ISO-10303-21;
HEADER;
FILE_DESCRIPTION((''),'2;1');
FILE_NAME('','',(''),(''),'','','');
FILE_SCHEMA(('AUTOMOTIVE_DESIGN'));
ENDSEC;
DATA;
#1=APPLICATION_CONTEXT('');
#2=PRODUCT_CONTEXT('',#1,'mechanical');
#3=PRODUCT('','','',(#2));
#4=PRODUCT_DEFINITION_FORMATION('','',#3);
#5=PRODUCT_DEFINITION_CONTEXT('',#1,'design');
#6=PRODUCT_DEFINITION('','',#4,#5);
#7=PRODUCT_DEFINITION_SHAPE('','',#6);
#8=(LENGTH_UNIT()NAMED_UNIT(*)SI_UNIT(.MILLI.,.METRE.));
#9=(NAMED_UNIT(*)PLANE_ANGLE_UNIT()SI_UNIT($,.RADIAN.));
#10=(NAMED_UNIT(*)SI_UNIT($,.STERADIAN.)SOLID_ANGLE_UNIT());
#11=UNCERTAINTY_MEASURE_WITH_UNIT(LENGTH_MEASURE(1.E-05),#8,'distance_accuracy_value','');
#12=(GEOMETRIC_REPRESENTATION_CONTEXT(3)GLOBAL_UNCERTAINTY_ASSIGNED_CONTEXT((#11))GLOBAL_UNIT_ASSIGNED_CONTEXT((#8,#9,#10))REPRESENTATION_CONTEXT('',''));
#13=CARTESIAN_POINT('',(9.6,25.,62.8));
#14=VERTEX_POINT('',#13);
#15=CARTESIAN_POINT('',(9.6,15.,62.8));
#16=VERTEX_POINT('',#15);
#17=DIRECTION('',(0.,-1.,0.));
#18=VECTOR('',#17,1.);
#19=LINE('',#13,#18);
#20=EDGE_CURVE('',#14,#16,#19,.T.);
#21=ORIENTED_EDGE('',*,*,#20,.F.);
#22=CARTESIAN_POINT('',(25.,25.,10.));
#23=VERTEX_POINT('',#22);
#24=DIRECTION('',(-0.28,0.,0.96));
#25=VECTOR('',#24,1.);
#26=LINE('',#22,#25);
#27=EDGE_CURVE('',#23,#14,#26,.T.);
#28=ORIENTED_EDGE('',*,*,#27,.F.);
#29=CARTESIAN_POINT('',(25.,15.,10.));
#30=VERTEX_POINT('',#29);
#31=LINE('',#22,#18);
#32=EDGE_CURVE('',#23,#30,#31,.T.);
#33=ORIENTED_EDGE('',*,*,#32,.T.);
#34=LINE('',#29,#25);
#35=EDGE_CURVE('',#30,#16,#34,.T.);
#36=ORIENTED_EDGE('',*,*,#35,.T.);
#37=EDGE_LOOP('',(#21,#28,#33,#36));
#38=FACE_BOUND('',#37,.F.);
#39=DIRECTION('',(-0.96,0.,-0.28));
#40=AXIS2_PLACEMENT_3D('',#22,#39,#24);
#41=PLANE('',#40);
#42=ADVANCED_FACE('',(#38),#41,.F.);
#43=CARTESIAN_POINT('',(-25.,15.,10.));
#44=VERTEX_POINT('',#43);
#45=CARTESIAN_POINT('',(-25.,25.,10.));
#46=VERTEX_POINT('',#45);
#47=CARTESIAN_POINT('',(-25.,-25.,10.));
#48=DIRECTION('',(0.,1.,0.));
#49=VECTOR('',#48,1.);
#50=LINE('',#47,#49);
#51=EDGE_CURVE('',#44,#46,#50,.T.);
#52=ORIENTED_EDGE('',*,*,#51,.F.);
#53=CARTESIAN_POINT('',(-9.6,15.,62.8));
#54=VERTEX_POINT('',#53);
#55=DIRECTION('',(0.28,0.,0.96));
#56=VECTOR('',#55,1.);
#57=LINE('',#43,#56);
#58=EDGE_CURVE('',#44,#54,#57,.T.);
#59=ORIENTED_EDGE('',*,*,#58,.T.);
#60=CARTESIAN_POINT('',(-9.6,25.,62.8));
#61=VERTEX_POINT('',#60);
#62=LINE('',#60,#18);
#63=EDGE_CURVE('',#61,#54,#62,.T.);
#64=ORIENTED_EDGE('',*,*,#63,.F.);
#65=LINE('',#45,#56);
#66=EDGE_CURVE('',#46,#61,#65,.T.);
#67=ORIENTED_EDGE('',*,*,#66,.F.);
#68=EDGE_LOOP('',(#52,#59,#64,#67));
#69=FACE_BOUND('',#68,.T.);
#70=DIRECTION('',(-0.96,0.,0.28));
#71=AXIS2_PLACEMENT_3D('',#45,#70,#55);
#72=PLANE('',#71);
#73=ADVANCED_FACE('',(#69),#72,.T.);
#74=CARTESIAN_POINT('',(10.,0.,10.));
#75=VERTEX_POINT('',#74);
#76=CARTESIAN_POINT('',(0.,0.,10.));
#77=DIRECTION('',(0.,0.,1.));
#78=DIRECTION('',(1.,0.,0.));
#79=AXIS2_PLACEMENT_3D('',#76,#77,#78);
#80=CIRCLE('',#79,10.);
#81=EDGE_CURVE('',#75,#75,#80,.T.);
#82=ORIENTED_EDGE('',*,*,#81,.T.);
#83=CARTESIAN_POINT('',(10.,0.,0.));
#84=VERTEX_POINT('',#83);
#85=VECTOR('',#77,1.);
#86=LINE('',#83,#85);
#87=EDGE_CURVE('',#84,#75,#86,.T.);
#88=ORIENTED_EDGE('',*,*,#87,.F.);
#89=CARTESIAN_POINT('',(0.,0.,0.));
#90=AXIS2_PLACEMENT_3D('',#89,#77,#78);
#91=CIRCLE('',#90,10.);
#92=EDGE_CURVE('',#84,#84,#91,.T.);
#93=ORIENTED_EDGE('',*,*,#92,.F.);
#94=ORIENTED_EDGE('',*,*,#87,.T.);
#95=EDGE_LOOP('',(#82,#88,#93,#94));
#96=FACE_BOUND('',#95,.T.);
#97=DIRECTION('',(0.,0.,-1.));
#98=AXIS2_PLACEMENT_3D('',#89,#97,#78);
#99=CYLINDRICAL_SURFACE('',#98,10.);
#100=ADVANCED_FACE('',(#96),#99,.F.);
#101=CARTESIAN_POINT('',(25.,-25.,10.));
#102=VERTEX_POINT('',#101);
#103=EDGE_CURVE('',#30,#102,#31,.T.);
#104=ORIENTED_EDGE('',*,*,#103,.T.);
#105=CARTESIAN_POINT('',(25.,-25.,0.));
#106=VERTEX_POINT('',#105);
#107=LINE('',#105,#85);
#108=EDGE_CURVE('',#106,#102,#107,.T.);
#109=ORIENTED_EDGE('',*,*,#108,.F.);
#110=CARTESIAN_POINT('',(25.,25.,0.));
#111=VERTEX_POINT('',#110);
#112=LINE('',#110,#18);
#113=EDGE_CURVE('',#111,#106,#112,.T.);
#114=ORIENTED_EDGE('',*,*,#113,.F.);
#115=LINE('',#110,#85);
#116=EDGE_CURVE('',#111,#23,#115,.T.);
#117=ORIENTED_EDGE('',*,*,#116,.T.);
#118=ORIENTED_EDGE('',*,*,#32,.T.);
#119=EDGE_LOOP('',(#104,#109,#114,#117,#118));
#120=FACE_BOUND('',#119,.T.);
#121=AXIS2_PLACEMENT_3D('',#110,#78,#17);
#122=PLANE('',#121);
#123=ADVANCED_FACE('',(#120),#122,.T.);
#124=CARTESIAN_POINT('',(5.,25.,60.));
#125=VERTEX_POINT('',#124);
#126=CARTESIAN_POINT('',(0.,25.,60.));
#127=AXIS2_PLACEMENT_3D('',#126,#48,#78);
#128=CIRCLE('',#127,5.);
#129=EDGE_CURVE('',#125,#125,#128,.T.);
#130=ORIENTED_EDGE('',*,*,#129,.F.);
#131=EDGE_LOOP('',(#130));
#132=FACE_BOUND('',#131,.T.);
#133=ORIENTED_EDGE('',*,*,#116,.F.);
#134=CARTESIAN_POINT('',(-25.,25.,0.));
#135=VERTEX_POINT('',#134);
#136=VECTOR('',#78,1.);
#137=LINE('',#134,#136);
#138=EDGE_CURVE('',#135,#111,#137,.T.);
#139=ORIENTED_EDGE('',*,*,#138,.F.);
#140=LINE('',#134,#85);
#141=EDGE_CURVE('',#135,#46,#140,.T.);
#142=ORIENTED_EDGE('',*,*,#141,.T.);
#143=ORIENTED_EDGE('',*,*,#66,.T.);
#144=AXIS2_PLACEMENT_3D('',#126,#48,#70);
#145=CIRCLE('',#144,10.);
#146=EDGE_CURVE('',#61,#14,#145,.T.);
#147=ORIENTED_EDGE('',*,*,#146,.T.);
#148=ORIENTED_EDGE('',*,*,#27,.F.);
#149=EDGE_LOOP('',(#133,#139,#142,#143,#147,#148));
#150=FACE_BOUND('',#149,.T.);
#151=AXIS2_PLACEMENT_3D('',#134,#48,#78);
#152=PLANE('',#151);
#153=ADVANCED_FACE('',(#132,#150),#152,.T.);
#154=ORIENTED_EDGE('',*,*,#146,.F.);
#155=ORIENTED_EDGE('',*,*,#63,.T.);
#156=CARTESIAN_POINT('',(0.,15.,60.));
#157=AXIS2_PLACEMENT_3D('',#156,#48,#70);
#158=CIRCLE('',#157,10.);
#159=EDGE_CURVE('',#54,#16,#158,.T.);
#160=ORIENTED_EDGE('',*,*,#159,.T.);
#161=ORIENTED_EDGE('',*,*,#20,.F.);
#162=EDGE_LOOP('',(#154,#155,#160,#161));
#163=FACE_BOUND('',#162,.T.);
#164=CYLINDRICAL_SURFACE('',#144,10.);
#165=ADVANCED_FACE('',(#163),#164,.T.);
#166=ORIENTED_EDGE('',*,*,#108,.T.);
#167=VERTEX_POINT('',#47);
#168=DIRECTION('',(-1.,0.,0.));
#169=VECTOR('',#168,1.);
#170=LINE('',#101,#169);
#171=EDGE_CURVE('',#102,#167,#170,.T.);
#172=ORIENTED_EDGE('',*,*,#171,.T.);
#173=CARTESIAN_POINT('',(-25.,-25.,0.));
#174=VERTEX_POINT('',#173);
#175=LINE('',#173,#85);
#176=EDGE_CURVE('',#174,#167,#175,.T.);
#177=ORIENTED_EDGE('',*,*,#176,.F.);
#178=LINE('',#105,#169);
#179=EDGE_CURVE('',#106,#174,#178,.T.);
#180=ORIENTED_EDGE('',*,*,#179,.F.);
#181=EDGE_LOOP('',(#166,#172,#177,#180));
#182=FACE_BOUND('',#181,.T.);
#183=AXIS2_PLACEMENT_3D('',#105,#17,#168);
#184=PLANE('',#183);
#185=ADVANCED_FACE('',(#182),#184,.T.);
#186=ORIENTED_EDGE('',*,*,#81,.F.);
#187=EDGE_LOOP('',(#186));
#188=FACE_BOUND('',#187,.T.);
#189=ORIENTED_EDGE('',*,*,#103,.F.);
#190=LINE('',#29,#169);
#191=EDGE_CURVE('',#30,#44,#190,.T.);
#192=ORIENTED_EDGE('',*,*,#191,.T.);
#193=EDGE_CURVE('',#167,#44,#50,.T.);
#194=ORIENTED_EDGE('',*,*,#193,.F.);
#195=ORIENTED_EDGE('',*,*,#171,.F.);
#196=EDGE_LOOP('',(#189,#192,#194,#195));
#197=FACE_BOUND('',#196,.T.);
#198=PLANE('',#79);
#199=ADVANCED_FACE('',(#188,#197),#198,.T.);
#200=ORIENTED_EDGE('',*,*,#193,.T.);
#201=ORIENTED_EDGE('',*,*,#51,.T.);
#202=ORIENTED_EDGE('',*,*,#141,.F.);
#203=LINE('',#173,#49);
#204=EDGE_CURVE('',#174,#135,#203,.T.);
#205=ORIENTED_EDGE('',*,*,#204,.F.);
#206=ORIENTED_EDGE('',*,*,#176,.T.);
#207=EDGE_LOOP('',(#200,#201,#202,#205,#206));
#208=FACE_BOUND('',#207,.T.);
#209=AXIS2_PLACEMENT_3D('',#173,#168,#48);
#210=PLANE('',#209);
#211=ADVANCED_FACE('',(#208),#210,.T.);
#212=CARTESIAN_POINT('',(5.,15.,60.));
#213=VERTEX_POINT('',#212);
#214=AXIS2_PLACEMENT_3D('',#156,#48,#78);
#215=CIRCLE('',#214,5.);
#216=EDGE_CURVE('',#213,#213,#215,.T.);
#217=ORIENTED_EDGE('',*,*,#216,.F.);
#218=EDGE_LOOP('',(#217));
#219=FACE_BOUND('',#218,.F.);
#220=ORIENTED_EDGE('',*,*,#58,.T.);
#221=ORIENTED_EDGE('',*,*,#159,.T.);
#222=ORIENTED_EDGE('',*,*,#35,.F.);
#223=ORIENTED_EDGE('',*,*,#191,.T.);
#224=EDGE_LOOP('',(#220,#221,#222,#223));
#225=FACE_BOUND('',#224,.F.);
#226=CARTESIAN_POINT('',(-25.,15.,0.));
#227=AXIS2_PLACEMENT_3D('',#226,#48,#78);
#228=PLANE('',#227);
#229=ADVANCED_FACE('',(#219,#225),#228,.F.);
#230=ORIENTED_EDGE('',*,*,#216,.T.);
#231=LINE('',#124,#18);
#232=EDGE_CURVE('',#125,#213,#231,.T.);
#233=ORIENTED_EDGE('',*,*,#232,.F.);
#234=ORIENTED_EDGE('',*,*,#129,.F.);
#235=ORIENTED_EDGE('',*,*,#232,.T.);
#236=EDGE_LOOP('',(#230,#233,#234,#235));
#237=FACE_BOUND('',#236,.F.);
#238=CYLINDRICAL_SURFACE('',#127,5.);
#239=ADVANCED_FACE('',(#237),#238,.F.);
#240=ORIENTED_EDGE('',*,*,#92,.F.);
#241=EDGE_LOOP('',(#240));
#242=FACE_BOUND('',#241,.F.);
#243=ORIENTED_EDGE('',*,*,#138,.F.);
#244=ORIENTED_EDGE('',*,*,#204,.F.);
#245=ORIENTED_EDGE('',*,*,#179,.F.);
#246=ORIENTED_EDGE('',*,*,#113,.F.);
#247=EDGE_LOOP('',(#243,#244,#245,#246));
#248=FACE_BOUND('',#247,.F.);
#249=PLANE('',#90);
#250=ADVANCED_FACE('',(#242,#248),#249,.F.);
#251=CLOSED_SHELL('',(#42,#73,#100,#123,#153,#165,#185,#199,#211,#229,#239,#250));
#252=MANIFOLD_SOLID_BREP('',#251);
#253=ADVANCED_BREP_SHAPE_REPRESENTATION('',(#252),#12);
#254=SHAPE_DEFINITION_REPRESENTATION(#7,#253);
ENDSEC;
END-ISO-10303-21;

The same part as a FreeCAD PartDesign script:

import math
import FreeCAD as App
import Part
import Sketcher
Q = App.Units.Quantity

doc = App.newDocument("Part")
body = doc.addObject("PartDesign::Body", "Body")

sketch1 = doc.addObject("Sketcher::SketchObject", "Sketch")
body.addObject(sketch1)
sketch1.AttachmentSupport = (doc.XY_Plane, [""])
sketch1.MapMode = "FlatFace"
sketch1.addGeometry([
    Part.LineSegment(App.Vector(25, 25, 0), App.Vector(-25, 25, 0)),
    Part.LineSegment(App.Vector(-25, 25, 0), App.Vector(-25, -25, 0)),
    Part.LineSegment(App.Vector(-25, -25, 0), App.Vector(25, -25, 0)),
    Part.LineSegment(App.Vector(25, -25, 0), App.Vector(25, 25, 0)),
    Part.Circle(App.Vector(0, 0, 0), App.Vector(0, 0, 1), 10),
], False)
sketch1.addConstraint([
    Sketcher.Constraint("Coincident", 0, 2, 1, 1),
    Sketcher.Constraint("Coincident", 1, 2, 2, 1),
    Sketcher.Constraint("Coincident", 2, 2, 3, 1),
    Sketcher.Constraint("Coincident", 3, 2, 0, 1),
    Sketcher.Constraint("Horizontal", 0),
    Sketcher.Constraint("Vertical", 1),
    Sketcher.Constraint("Horizontal", 2),
    Sketcher.Constraint("Vertical", 3),
    Sketcher.Constraint("Coincident", 4, 3, -1, 1),
    Sketcher.Constraint("Symmetric", 0, 2, 2, 2, -1, 1),
    Sketcher.Constraint("Equal", 2, 1),
    Sketcher.Constraint("Diameter", 4, Q("20 mm")),
    Sketcher.Constraint("DistanceX", 0, 2, 0, 1, Q("50 mm")),
])
pad1 = doc.addObject("PartDesign::Pad", "Pad")
body.addObject(pad1)
pad1.Profile = sketch1
pad1.Length = 10

sketch2 = doc.addObject("Sketcher::SketchObject", "Sketch001")
body.addObject(sketch2)
sketch2.AttachmentSupport = (doc.XZ_Plane, [""])
sketch2.MapMode = "FlatFace"
sketch2.AttachmentOffset = App.Placement(App.Vector(0, 0, -25), App.Rotation())
sketch2.addGeometry([
    Part.LineSegment(App.Vector(-25, 10, 0), App.Vector(-9.6, 62.8, 0)),
    Part.ArcOfCircle(Part.Circle(App.Vector(0, 60, 0), App.Vector(0, 0, 1), 10), math.radians(16.260205), math.radians(163.739795)),
    Part.LineSegment(App.Vector(9.6, 62.8, 0), App.Vector(25, 10, 0)),
    Part.LineSegment(App.Vector(25, 10, 0), App.Vector(-25, 10, 0)),
    Part.Circle(App.Vector(0, 60, 0), App.Vector(0, 0, 1), 5),
], False)
sketch2.addConstraint([
    Sketcher.Constraint("Tangent", 0, 2, 1, 2),
    Sketcher.Constraint("Tangent", 1, 1, 2, 1),
    Sketcher.Constraint("Coincident", 2, 2, 3, 1),
    Sketcher.Constraint("Coincident", 3, 2, 0, 1),
    Sketcher.Constraint("Horizontal", 3),
    Sketcher.Constraint("Coincident", 4, 3, 1, 3),
    Sketcher.Constraint("Symmetric", 0, 2, 1, 1, -2),
    Sketcher.Constraint("Diameter", 4, Q("10 mm")),
    Sketcher.Constraint("Radius", 1, Q("10 mm")),
    Sketcher.Constraint("DistanceX", 3, 2, 3, 1, Q("50 mm")),
    Sketcher.Constraint("DistanceY", -1, 1, 2, 2, Q("10 mm")),
    Sketcher.Constraint("DistanceY", 2, 2, 1, 3, Q("50 mm")),
])
pad2 = doc.addObject("PartDesign::Pad", "Pad001")
body.addObject(pad2)
pad2.Profile = sketch2
pad2.Length = 10

doc.recompute()
